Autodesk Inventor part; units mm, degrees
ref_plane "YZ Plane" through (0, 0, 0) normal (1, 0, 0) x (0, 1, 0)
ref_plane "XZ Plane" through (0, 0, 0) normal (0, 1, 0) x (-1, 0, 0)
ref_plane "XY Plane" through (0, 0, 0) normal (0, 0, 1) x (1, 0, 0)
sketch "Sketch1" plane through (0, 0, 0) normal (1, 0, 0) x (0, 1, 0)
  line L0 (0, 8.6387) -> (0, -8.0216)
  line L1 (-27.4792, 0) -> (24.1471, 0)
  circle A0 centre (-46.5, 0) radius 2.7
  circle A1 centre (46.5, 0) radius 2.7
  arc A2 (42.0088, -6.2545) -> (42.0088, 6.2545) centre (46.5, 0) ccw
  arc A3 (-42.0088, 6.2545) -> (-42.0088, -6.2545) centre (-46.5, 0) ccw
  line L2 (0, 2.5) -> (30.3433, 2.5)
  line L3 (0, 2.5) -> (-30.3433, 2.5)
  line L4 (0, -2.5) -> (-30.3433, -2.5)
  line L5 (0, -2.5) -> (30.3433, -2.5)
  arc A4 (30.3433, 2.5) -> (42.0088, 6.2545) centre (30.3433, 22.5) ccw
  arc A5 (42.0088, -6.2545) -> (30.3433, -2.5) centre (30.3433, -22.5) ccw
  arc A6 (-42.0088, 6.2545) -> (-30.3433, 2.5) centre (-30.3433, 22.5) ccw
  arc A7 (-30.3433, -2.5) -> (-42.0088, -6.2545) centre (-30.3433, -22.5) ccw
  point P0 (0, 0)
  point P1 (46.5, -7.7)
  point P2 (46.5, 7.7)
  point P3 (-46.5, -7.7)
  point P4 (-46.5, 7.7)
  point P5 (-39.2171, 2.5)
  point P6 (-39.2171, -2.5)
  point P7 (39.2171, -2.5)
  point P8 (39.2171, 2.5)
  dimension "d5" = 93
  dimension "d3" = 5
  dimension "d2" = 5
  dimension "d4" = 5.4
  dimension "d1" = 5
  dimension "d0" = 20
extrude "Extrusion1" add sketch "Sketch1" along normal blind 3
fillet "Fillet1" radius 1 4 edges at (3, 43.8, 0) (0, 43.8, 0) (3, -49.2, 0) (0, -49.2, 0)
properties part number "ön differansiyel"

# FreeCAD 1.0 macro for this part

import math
import FreeCAD as App
import Part
import Sketcher

V = App.Vector


def edges_at(feature, points):
    """Names of the edges that pass closest to the given points."""
    edges = feature.Shape.Edges
    near = lambda p: min(range(len(edges)), key=lambda i: edges[i].distToShape(Part.Vertex(*p))[0])
    return sorted({f"Edge{near(p) + 1}" for p in points})

doc = App.newDocument("Part")
body = doc.addObject("PartDesign::Body", "Body")

sketch1 = doc.addObject("Sketcher::SketchObject", "Sketch")
body.addObject(sketch1)
sketch1.AttachmentSupport = (doc.YZ_Plane, [""])
sketch1.MapMode = "FlatFace"
sketch1.addGeometry([
    Part.LineSegment(V(30.3, 2.5, 0), V(-30.3, 2.5, 0)),
    Part.ArcOfCircle(Part.Circle(V(-30.3, 22.5, 0), V(0, 0, 1), 20), math.radians(-126), math.radians(-90)),
    Part.ArcOfCircle(Part.Circle(V(-46.5, 0, 0), V(0, 0, 1), 7.7), math.radians(54), math.radians(306)),
    Part.ArcOfCircle(Part.Circle(V(-30.3, -22.5, 0), V(0, 0, 1), 20), math.radians(90), math.radians(126)),
    Part.LineSegment(V(-30.3, -2.5, 0), V(30.3, -2.5, 0)),
    Part.ArcOfCircle(Part.Circle(V(30.3, -22.5, 0), V(0, 0, 1), 20), math.radians(54), math.radians(90)),
    Part.ArcOfCircle(Part.Circle(V(46.5, 0, 0), V(0, 0, 1), 7.7), math.radians(-126), math.radians(126)),
    Part.ArcOfCircle(Part.Circle(V(30.3, 22.5, 0), V(0, 0, 1), 20), math.radians(-90), math.radians(-54)),
    Part.Circle(V(46.5, 0, 0), V(0, 0, 1), 2.7),
    Part.Circle(V(-46.5, 0, 0), V(0, 0, 1), 2.7),
], False)
sketch1.addConstraint([
    Sketcher.Constraint("Tangent", 0, 2, 1, 2),
    Sketcher.Constraint("Tangent", 1, 1, 2, 1),
    Sketcher.Constraint("Tangent", 2, 2, 3, 2),
    Sketcher.Constraint("Tangent", 3, 1, 4, 1),
    Sketcher.Constraint("Tangent", 4, 2, 5, 2),
    Sketcher.Constraint("Tangent", 5, 1, 6, 1),
    Sketcher.Constraint("Tangent", 6, 2, 7, 2),
    Sketcher.Constraint("Tangent", 7, 1, 0, 1),
    Sketcher.Constraint("Horizontal", 0),
    Sketcher.Constraint("Horizontal", 4),
    Sketcher.Constraint("Coincident", 8, 3, 6, 3),
    Sketcher.Constraint("Coincident", 9, 3, 2, 3),
    Sketcher.Constraint("Equal", 1, 3),
    Sketcher.Constraint("Equal", 3, 5),
    Sketcher.Constraint("Equal", 2, 6),
    Sketcher.Constraint("Equal", 5, 7),
    Sketcher.Constraint("Equal", 8, 9),
    Sketcher.Constraint("Symmetric", 1, 3, 5, 3, -1, 1),
    Sketcher.Constraint("Symmetric", 2, 3, 6, 3, -2),
    Sketcher.Constraint("Radius", 1, 20.0),
    Sketcher.Constraint("Diameter", 8, 5.4),
    Sketcher.Constraint("DistanceX", 2, 3, 6, 3, 93.0),
    Sketcher.Constraint("DistanceY", 3, 1, 0, 2, 5.0),
    Sketcher.Constraint("Radius", 2, 7.7),
])
pad1 = doc.addObject("PartDesign::Pad", "Pad")
body.addObject(pad1)
pad1.Profile = sketch1
pad1.Length = 3
doc.recompute()

fillet = doc.addObject("PartDesign::Fillet", "Fillet")
body.addObject(fillet)
fillet.Base = (pad1, edges_at(pad1, [
    (3, 43.8, 0),
    (0, 43.8, 0),
    (3, -49.2, 0),
    (0, -49.2, 0),
]))
fillet.Radius = 1

doc.recompute()
